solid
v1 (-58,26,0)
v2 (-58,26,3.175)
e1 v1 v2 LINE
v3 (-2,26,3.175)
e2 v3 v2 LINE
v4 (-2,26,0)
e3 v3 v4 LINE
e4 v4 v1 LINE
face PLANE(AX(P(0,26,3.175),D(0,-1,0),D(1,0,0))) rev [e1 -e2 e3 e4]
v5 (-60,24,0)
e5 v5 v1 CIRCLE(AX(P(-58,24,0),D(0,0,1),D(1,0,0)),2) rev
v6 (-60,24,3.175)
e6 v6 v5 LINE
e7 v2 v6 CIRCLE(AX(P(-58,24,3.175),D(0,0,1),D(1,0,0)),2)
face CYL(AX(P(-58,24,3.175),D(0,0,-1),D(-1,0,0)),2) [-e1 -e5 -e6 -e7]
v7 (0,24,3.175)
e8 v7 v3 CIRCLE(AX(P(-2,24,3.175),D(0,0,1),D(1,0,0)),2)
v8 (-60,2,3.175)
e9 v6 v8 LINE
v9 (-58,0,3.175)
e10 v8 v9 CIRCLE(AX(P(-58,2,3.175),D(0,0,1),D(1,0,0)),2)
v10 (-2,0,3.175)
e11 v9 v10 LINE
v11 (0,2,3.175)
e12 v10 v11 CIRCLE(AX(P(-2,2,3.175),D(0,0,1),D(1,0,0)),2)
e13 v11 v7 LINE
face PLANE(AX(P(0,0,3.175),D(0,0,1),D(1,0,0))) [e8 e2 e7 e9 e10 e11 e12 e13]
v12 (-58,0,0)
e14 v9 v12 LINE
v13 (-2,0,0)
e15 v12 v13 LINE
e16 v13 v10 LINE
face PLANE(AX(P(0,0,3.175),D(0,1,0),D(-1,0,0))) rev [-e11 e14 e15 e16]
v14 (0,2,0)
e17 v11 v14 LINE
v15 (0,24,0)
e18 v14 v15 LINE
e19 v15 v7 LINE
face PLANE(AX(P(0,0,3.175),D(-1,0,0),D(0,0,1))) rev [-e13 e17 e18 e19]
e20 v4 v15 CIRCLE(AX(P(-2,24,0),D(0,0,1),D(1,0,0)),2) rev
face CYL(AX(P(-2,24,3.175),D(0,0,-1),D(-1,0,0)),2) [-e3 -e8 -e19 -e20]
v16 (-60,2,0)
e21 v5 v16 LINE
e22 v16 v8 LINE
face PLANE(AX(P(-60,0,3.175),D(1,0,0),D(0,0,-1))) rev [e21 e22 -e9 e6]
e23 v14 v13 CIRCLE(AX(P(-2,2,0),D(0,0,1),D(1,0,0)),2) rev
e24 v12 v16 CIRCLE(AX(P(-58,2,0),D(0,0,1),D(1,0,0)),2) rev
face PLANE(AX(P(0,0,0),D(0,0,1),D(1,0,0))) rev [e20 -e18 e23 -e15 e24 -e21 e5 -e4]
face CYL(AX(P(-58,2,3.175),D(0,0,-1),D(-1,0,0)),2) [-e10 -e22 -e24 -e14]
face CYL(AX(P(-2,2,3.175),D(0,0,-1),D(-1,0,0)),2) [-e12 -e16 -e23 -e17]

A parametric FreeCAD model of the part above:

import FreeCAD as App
import Part
import Sketcher
from FreeCAD import Vector
Q = App.Units.Quantity


def edges_at(feature, points):
    """Names of the edges that pass closest to the given points."""
    edges = feature.Shape.Edges
    near = lambda p: min(range(len(edges)), key=lambda i: edges[i].distToShape(Part.Vertex(*p))[0])
    return sorted({f"Edge{near(p) + 1}" for p in points})

doc = App.newDocument("Part")
body = doc.addObject("PartDesign::Body", "Body")

# Sketch on XY plane
sketch1 = body.newObject("Sketcher::SketchObject", "Sketch")
sketch1.AttachmentSupport = (doc.getObject("XY_Plane"), [""])
sketch1.MapMode = "FlatFace"
sketch1.addGeometry([
    Part.LineSegment(Vector(-60, 26, 0), Vector(-60, 0, 0)),
    Part.LineSegment(Vector(-60, 0, 0), Vector(0, 0, 0)),
    Part.LineSegment(Vector(0, 0, 0), Vector(0, 26, 0)),
    Part.LineSegment(Vector(0, 26, 0), Vector(-60, 26, 0)),
], False)
sketch1.addConstraint([
    Sketcher.Constraint("Coincident", 0, 2, 1, 1),
    Sketcher.Constraint("Coincident", 1, 2, 2, 1),
    Sketcher.Constraint("Coincident", 2, 2, 3, 1),
    Sketcher.Constraint("Coincident", 3, 2, 0, 1),
    Sketcher.Constraint("Vertical", 0),
    Sketcher.Constraint("Horizontal", 1),
    Sketcher.Constraint("Vertical", 2),
    Sketcher.Constraint("Horizontal", 3),
    Sketcher.Constraint("Coincident", 1, 2, -1, 1),
    Sketcher.Constraint("DistanceX", 1, 1, 1, 2, Q("60 mm")),
    Sketcher.Constraint("DistanceY", 0, 2, 0, 1, Q("26 mm")),
])
pad1 = body.newObject("PartDesign::Pad", "Pad")
pad1.Profile = sketch1
pad1.Length = 3.175
doc.recompute()

fillet = body.newObject("PartDesign::Fillet", "Fillet")
fillet.Base = (pad1, edges_at(pad1, [
    (0, 0, 1.587),
    (-60, 0, 1.587),
    (-60, 26, 1.587),
    (0, 26, 1.587),
]))
fillet.Radius = 2

doc.recompute()
